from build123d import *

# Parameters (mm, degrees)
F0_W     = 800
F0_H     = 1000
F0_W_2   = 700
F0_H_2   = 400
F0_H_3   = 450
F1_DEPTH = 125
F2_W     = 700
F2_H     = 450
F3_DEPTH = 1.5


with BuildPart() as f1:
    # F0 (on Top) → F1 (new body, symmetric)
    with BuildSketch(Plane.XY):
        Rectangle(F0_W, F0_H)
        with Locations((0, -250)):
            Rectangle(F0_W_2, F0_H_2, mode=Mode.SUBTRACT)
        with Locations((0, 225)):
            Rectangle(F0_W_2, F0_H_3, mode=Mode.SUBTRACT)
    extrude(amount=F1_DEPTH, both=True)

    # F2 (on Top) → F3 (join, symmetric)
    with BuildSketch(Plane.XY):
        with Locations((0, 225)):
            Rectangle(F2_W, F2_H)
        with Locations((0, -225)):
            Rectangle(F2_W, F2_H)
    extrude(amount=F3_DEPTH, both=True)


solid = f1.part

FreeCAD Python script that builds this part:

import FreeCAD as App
import Part
import Sketcher
from FreeCAD import Vector

doc = App.newDocument("Part")
body = doc.addObject("PartDesign::Body", "Body")

# Sketch on XY plane
sketch1 = body.newObject("Sketcher::SketchObject", "Sketch")
sketch1.AttachmentSupport = (doc.getObject("XY_Plane"), [""])
sketch1.MapMode = "FlatFace"
sketch1.addGeometry([
    Part.LineSegment(Vector(-400, 500, 0), Vector(-400, -500, 0)),  # 0
    Part.LineSegment(Vector(-400, -500, 0), Vector(400, -500, 0)),  # 1
    Part.LineSegment(Vector(400, -500, 0), Vector(400, 500, 0)),  # 2
    Part.LineSegment(Vector(400, 500, 0), Vector(-400, 500, 0)),  # 3
    Part.LineSegment(Vector(350, -450, 0), Vector(-350, -450, 0)),  # 4
    Part.LineSegment(Vector(-350, -450, 0), Vector(-350, -50, 0)),  # 5
    Part.LineSegment(Vector(-350, -50, 0), Vector(350, -50, 0)),  # 6
    Part.LineSegment(Vector(350, -50, 0), Vector(350, -450, 0)),  # 7
    Part.LineSegment(Vector(350, 0, 0), Vector(-350, 0, 0)),  # 8
    Part.LineSegment(Vector(-350, 0, 0), Vector(-350, 450, 0)),  # 9
    Part.LineSegment(Vector(-350, 450, 0), Vector(350, 450, 0)),  # 10
    Part.LineSegment(Vector(350, 450, 0), Vector(350, 0, 0)),  # 11
], False)
sketch1.addConstraint([
    Sketcher.Constraint("Coincident", 0, 2, 1, 1),
    Sketcher.Constraint("Coincident", 1, 2, 2, 1),
    Sketcher.Constraint("Coincident", 2, 2, 3, 1),
    Sketcher.Constraint("Coincident", 3, 2, 0, 1),
    Sketcher.Constraint("Coincident", 4, 2, 5, 1),
    Sketcher.Constraint("Coincident", 5, 2, 6, 1),
    Sketcher.Constraint("Coincident", 6, 2, 7, 1),
    Sketcher.Constraint("Coincident", 7, 2, 4, 1),
    Sketcher.Constraint("Coincident", 8, 2, 9, 1),
    Sketcher.Constraint("Coincident", 9, 2, 10, 1),
    Sketcher.Constraint("Coincident", 10, 2, 11, 1),
    Sketcher.Constraint("Coincident", 11, 2, 8, 1),
    Sketcher.Constraint("Vertical", 0),
    Sketcher.Constraint("Horizontal", 1),
    Sketcher.Constraint("Vertical", 2),
    Sketcher.Constraint("Horizontal", 3),
    Sketcher.Constraint("Horizontal", 4),
    Sketcher.Constraint("Vertical", 5),
    Sketcher.Constraint("Horizontal", 6),
    Sketcher.Constraint("Vertical", 7),
    Sketcher.Constraint("Horizontal", 8),
    Sketcher.Constraint("Vertical", 9),
    Sketcher.Constraint("Horizontal", 10),
    Sketcher.Constraint("Vertical", 11),
    Sketcher.Constraint("Symmetric", 0, 2, 2, 2, -1, 1),
    Sketcher.Constraint("Symmetric", 7, 2, 9, 2, -1, 1),
    Sketcher.Constraint("Symmetric", 8, 2, 11, 2, -1, 1),
    Sketcher.Constraint("Vertical", 5, 2, 8, 2),
    Sketcher.Constraint("DistanceX", 1, 1, 1, 2, 800.0),
    Sketcher.Constraint("DistanceX", 4, 2, 4, 1, 700.0),
    Sketcher.Constraint("DistanceY", 0, 2, 0, 1, 1000.0),
    Sketcher.Constraint("DistanceY", 5, 1, 5, 2, 400.0),
    Sketcher.Constraint("DistanceY", 9, 1, 9, 2, 450.0),
])
pad1 = body.newObject("PartDesign::Pad", "Pad")
pad1.Profile = sketch1
pad1.Length = 250
pad1.Midplane = True

# Sketch on XY plane
sketch2 = body.newObject("Sketcher::SketchObject", "Sketch001")
sketch2.AttachmentSupport = (doc.getObject("XY_Plane"), [""])
sketch2.MapMode = "FlatFace"
sketch2.addGeometry([
    Part.LineSegment(Vector(-350, 450, 0), Vector(-350, -450, 0)),
    Part.LineSegment(Vector(-350, -450, 0), Vector(350, -450, 0)),
    Part.LineSegment(Vector(350, -450, 0), Vector(350, 450, 0)),
    Part.LineSegment(Vector(350, 450, 0), Vector(-350, 450, 0)),
], False)
sketch2.addConstraint([
    Sketcher.Constraint("Coincident", 0, 2, 1, 1),
    Sketcher.Constraint("Coincident", 1, 2, 2, 1),
    Sketcher.Constraint("Coincident", 2, 2, 3, 1),
    Sketcher.Constraint("Coincident", 3, 2, 0, 1),
    Sketcher.Constraint("Vertical", 0),
    Sketcher.Constraint("Horizontal", 1),
    Sketcher.Constraint("Vertical", 2),
    Sketcher.Constraint("Horizontal", 3),
    Sketcher.Constraint("Symmetric", 0, 2, 2, 2, -1, 1),
    Sketcher.Constraint("DistanceX", 1, 1, 1, 2, 700.0),
    Sketcher.Constraint("DistanceY", 0, 2, 0, 1, 900.0),
])
pad2 = body.newObject("PartDesign::Pad", "Pad001")
pad2.Profile = sketch2
pad2.Length = 3
pad2.Midplane = True

doc.recompute()
